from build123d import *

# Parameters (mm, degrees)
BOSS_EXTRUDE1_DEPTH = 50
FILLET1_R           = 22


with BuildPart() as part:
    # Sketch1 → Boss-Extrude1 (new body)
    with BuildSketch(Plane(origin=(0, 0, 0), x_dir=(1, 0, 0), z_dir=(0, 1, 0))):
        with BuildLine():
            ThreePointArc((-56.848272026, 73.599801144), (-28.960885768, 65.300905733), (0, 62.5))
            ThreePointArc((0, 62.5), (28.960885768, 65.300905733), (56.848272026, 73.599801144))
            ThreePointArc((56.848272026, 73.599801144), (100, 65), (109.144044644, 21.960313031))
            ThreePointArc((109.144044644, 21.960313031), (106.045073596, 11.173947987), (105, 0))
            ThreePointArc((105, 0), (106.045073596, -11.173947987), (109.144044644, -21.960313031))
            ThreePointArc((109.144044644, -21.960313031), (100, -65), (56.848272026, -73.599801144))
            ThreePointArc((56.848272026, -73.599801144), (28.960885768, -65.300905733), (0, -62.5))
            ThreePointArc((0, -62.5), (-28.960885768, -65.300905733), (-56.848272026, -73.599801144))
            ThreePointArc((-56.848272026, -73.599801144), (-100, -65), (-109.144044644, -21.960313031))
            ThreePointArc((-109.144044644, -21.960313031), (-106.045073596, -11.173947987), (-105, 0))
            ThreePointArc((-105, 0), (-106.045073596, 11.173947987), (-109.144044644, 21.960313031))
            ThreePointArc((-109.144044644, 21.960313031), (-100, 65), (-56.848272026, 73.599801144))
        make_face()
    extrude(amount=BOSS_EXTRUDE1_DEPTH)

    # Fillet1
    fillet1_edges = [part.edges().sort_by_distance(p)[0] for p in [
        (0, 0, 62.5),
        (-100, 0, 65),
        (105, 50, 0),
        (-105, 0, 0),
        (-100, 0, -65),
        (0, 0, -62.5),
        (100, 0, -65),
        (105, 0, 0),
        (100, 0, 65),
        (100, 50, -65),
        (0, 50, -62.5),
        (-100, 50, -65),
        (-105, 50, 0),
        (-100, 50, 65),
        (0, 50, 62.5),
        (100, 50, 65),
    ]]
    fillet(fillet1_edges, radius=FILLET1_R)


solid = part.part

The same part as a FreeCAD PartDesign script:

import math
import FreeCAD as App
import Part
import Sketcher


def edges_at(feature, points):
    """Names of the edges that pass closest to the given points."""
    edges = feature.Shape.Edges
    near = lambda p: min(range(len(edges)), key=lambda i: edges[i].distToShape(Part.Vertex(*p))[0])
    return sorted({f"Edge{near(p) + 1}" for p in points})

doc = App.newDocument("Part")
params = doc.addObject("Spreadsheet::Sheet", "Params")
for row, (alias, value) in enumerate([
    ("sketch1_radius", "40 mm"),
    ("pad1_length", "50 mm"),
    ("fillet_radius", "22 mm"),
], start=1):
    params.set(f"A{row}", alias)
    params.set(f"B{row}", "=" + value)
    params.setAlias(f"B{row}", alias)

body = doc.addObject("PartDesign::Body", "Body")

sketch1 = doc.addObject("Sketcher::SketchObject", "Sketch")
body.addObject(sketch1)
sketch1.AttachmentSupport = (doc.XZ_Plane, [""])
sketch1.MapMode = "FlatFace"
sketch1.addGeometry(Part.ArcOfCircle(Part.Circle(App.Vector(0, -214, 0), App.Vector(0, 0, 1), 151), math.radians(90), math.radians(112)), False)
sketch1.addGeometry(Part.ArcOfCircle(Part.Circle(App.Vector(-72, -37, 0), App.Vector(0, 0, 1), 40), math.radians(159), math.radians(292)), False)
sketch1.addGeometry(Part.ArcOfCircle(Part.Circle(App.Vector(-165, 0, 0), App.Vector(0, 0, 1), 60), math.radians(-21), math.radians(0)), False)
sketch1.addGeometry(Part.ArcOfCircle(Part.Circle(App.Vector(-165, 0, 0), App.Vector(0, 0, 1), 60), math.radians(0), math.radians(21)), False)
sketch1.addGeometry(Part.ArcOfCircle(Part.Circle(App.Vector(-72, 37, 0), App.Vector(0, 0, 1), 40), math.radians(68), math.radians(201)), False)
sketch1.addGeometry(Part.ArcOfCircle(Part.Circle(App.Vector(0, 214, 0), App.Vector(0, 0, 1), 151), math.radians(-112), math.radians(-90)), False)
sketch1.addGeometry(Part.ArcOfCircle(Part.Circle(App.Vector(0, 214, 0), App.Vector(0, 0, 1), 151), math.radians(-90), math.radians(-68)), False)
sketch1.addGeometry(Part.ArcOfCircle(Part.Circle(App.Vector(72, 37, 0), App.Vector(0, 0, 1), 40), math.radians(-21), math.radians(112)), False)
sketch1.addGeometry(Part.ArcOfCircle(Part.Circle(App.Vector(165, 0, 0), App.Vector(0, 0, 1), 60), math.radians(159), math.radians(180)), False)
sketch1.addGeometry(Part.ArcOfCircle(Part.Circle(App.Vector(165, 0, 0), App.Vector(0, 0, 1), 60), math.radians(-180), math.radians(-159)), False)
sketch1.addGeometry(Part.ArcOfCircle(Part.Circle(App.Vector(72, -37, 0), App.Vector(0, 0, 1), 40), math.radians(-112), math.radians(21)), False)
sketch1.addGeometry(Part.ArcOfCircle(Part.Circle(App.Vector(0, -214, 0), App.Vector(0, 0, 1), 151), math.radians(68), math.radians(90)), False)
sketch1.addConstraint(Sketcher.Constraint("Tangent", 0, 2, 1, 2))
sketch1.addConstraint(Sketcher.Constraint("Tangent", 1, 1, 2, 1))
sketch1.addConstraint(Sketcher.Constraint("Tangent", 2, 2, 3, 1))
sketch1.addConstraint(Sketcher.Constraint("Tangent", 3, 2, 4, 2))
sketch1.addConstraint(Sketcher.Constraint("Tangent", 4, 1, 5, 1))
sketch1.addConstraint(Sketcher.Constraint("Tangent", 5, 2, 6, 1))
sketch1.addConstraint(Sketcher.Constraint("Tangent", 6, 2, 7, 2))
sketch1.addConstraint(Sketcher.Constraint("Tangent", 7, 1, 8, 1))
sketch1.addConstraint(Sketcher.Constraint("Tangent", 8, 2, 9, 1))
sketch1.addConstraint(Sketcher.Constraint("Tangent", 9, 2, 10, 2))
sketch1.addConstraint(Sketcher.Constraint("Tangent", 10, 1, 11, 1))
sketch1.addConstraint(Sketcher.Constraint("Tangent", 11, 2, 0, 1))
sketch1.addConstraint(Sketcher.Constraint("Equal", 2, 3))
sketch1.addConstraint(Sketcher.Constraint("Equal", 1, 4))
sketch1.addConstraint(Sketcher.Constraint("Equal", 0, 5))
sketch1.addConstraint(Sketcher.Constraint("Equal", 5, 6))
sketch1.addConstraint(Sketcher.Constraint("Equal", 4, 7))
sketch1.addConstraint(Sketcher.Constraint("Equal", 3, 8))
sketch1.addConstraint(Sketcher.Constraint("Equal", 8, 9))
sketch1.addConstraint(Sketcher.Constraint("Equal", 7, 10))
sketch1.addConstraint(Sketcher.Constraint("Equal", 6, 11))
sketch1.addConstraint(Sketcher.Constraint("Symmetric", 0, 3, 5, 3, -1, 1))
sketch1.addConstraint(Sketcher.Constraint("Symmetric", 2, 3, 8, 3, -1, 1))
sketch1.addConstraint(Sketcher.Constraint("Symmetric", 4, 3, 7, 3, -2))
sketch1.addConstraint(Sketcher.Constraint("PointOnObject", 2, 2, -1))
sketch1.addConstraint(Sketcher.Constraint("PointOnObject", 5, 2, -2))
sketch1.addConstraint(Sketcher.Constraint("PointOnObject", 8, 2, -1))
sketch1.addConstraint(Sketcher.Constraint("PointOnObject", 11, 2, -2))
sketch1.addConstraint(Sketcher.Constraint("Radius", 1, 40.0))
sketch1.addConstraint(Sketcher.Constraint("DistanceX", 2, 2, -1, 1, 105.0))
sketch1.addConstraint(Sketcher.Constraint("DistanceY", -1, 1, 5, 2, 62.5))
sketch1.addConstraint(Sketcher.Constraint("Radius", 0, 151.125753))
sketch1.addConstraint(Sketcher.Constraint("Radius", 2, 60.258576))
sketch1.setExpression("Constraints[28]", "Params.sketch1_radius")
pad1 = doc.addObject("PartDesign::Pad", "Pad")
body.addObject(pad1)
pad1.Profile = sketch1
pad1.setExpression("Length", "Params.pad1_length")
pad1.Reversed = True
doc.recompute()

fillet = doc.addObject("PartDesign::Fillet", "Fillet")
body.addObject(fillet)
fillet.Base = (pad1, edges_at(pad1, [
    (0, 25, 62.5),
    (-100, 0, 65),
    (105, 25, 0),
    (-105, 25, 0),
    (-100, 0, -65),
    (0, 25, -62.5),
    (100, 0, -65),
    (105, 25, 0),
    (100, 0, 65),
    (100, 50, -65),
    (0, 25, -62.5),
    (-100, 50, -65),
    (-105, 25, 0),
    (-100, 50, 65),
    (0, 25, 62.5),
    (100, 50, 65),
]))
fillet.setExpression("Radius", "Params.fillet_radius")

doc.recompute()
